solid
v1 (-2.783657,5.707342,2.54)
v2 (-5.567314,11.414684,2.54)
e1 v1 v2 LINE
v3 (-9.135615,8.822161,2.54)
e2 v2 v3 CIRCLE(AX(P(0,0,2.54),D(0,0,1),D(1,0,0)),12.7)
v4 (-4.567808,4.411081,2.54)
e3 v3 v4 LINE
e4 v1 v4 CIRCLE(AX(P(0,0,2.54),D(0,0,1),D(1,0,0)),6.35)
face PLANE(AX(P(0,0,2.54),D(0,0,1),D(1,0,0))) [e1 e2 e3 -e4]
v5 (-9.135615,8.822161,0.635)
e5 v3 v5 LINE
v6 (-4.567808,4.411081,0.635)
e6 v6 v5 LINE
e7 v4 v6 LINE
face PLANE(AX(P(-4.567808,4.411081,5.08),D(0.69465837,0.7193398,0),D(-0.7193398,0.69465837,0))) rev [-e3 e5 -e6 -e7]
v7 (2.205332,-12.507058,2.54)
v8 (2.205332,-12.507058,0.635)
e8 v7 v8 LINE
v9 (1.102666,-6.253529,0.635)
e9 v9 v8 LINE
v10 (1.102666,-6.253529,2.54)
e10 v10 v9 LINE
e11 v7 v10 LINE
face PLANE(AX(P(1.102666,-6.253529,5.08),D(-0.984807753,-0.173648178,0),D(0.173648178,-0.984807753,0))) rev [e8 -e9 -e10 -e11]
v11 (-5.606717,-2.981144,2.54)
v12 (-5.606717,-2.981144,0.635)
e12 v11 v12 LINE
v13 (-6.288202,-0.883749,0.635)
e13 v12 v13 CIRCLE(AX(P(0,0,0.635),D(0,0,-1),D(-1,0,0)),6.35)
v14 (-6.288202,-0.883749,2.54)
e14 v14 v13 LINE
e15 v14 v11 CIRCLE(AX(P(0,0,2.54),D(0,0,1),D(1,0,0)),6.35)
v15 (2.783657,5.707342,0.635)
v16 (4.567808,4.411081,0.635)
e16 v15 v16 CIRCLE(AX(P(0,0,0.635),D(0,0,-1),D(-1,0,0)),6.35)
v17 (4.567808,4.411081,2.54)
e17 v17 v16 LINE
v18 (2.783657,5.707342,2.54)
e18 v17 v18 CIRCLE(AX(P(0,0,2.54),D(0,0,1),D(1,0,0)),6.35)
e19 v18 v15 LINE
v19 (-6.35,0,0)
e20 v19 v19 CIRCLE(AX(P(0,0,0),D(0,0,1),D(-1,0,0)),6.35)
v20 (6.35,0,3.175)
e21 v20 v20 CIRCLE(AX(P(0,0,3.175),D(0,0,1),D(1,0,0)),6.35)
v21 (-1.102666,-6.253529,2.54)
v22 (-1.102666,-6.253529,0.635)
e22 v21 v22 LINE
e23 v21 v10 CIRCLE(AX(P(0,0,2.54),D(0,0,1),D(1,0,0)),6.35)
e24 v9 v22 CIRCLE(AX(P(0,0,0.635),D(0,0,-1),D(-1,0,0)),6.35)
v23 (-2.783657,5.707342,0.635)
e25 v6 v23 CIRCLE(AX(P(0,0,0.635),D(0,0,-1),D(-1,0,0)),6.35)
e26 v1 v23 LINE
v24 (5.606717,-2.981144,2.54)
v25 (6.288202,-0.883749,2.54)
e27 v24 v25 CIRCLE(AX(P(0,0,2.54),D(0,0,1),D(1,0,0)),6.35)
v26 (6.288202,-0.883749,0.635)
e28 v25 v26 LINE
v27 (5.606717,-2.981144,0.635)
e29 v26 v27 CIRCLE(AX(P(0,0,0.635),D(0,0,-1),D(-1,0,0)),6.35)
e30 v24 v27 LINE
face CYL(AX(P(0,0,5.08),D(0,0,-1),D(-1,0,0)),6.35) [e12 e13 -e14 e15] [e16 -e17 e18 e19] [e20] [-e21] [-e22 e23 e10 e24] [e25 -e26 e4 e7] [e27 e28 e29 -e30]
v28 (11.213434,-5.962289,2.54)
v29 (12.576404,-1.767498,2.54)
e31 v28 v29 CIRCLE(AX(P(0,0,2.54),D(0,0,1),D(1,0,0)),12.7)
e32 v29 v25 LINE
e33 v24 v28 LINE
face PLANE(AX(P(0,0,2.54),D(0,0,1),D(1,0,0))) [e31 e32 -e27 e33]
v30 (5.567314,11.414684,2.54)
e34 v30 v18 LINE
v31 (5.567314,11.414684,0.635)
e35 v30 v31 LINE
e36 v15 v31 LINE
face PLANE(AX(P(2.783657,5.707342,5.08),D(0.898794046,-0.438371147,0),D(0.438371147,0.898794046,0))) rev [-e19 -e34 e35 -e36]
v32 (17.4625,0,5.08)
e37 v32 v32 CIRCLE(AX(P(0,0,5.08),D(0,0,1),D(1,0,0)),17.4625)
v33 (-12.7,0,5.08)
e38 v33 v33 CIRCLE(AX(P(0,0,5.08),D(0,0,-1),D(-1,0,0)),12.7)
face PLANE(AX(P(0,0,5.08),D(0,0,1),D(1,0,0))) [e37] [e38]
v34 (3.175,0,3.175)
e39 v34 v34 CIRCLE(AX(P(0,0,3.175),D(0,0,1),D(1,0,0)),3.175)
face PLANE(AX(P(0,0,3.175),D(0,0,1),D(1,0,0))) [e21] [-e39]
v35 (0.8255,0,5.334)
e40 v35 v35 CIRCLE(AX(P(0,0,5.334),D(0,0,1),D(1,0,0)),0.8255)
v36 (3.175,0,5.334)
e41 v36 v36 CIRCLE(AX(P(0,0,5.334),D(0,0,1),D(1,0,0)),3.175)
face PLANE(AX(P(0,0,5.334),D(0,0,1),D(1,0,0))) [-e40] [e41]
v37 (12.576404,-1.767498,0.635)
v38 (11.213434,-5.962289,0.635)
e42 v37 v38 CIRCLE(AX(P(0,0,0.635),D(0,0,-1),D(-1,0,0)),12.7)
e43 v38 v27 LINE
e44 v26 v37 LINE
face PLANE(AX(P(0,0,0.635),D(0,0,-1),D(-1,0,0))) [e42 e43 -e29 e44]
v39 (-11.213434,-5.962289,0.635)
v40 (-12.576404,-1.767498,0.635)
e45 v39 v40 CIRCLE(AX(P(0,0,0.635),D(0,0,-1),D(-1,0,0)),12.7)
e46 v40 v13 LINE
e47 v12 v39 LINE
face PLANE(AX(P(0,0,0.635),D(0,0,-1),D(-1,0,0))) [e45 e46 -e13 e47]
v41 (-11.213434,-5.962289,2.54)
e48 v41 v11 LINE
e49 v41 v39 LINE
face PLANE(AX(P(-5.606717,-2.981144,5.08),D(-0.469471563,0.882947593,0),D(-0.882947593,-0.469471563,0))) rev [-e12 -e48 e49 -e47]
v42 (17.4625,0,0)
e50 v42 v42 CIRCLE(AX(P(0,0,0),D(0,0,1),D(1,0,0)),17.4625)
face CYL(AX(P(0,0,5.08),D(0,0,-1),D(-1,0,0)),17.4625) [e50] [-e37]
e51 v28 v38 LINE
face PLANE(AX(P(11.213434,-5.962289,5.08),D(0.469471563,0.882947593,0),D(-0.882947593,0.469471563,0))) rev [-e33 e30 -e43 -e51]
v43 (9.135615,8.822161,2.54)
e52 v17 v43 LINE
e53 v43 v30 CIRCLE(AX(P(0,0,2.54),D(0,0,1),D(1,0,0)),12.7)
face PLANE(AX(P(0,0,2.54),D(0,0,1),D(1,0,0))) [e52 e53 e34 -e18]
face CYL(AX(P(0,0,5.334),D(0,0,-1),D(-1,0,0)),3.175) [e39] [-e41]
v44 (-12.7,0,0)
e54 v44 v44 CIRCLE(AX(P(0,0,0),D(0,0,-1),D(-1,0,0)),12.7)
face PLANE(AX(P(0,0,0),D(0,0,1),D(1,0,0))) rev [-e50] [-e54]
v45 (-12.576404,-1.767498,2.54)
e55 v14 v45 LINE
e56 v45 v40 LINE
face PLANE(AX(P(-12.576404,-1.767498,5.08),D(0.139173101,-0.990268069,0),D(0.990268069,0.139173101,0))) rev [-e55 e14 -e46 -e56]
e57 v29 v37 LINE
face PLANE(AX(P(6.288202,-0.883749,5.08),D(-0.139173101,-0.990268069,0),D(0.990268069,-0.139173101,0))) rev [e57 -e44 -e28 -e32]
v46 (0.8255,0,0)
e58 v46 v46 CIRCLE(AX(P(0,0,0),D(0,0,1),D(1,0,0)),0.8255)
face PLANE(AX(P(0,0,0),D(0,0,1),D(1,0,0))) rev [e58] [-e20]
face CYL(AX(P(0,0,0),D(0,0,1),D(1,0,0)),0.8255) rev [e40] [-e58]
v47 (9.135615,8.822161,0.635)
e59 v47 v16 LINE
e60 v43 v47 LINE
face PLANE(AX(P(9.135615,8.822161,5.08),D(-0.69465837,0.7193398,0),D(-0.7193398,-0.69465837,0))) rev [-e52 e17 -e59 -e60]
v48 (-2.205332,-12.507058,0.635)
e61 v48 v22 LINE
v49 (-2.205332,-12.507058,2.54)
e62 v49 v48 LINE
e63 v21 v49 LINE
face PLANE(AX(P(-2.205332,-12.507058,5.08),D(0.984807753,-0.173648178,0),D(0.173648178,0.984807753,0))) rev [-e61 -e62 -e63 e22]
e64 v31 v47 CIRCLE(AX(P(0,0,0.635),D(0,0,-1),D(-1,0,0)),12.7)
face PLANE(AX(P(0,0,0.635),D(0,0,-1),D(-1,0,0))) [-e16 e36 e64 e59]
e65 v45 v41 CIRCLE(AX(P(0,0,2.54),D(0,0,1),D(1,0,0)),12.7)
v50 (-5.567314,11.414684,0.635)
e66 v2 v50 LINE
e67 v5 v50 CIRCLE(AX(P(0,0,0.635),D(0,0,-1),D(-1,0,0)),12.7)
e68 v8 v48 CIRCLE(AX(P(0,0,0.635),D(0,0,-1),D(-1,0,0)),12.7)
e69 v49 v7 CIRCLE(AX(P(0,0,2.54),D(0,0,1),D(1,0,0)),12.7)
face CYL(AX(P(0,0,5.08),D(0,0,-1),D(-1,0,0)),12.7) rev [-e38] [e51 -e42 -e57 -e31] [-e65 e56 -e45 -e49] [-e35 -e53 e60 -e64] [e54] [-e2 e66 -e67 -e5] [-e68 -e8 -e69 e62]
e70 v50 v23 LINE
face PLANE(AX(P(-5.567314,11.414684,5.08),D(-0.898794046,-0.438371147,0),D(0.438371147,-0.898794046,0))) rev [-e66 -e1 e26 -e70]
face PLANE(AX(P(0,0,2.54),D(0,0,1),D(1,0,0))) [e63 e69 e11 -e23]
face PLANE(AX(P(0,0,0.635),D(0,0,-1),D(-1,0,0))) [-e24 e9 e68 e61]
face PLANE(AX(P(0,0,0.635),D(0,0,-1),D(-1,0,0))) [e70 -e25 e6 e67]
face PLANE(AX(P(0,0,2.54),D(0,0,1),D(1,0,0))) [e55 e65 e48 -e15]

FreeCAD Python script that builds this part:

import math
import FreeCAD as App
import Part
import Sketcher

V = App.Vector
Q = App.Units.Quantity

doc = App.newDocument("Part")
body = doc.addObject("PartDesign::Body", "Body")

# Sketch on XY plane
sketch1 = body.newObject("Sketcher::SketchObject", "Sketch")
sketch1.AttachmentSupport = (doc.getObject("XY_Plane"), [""])
sketch1.MapMode = "FlatFace"
sketch1.addGeometry(Part.Circle(V(0, 0, 0), V(0, 0, 1), 17), False)
sketch1.addConstraint([
    Sketcher.Constraint("Coincident", 0, 3, -1, 1),
    Sketcher.Constraint("Diameter", 0, Q("1.375 in")),
])
pad1 = body.newObject("PartDesign::Pad", "Pad")
pad1.Profile = sketch1
pad1.Length = Q("0.2 in")

# Sketch on XY plane
sketch2 = body.newObject("Sketcher::SketchObject", "Sketch001")
sketch2.AttachmentSupport = (doc.getObject("XY_Plane"), [""])
sketch2.MapMode = "FlatFace"
sketch2.addGeometry([
    Part.LineSegment(V(-1, -6, 0), V(-2, -13, 0)),  # 0
    Part.ArcOfCircle(Part.Circle(V(0, 0, 0), V(0, 0, 1), 13), math.radians(-152), math.radians(-100)),  # 1
    Part.LineSegment(V(-11, -6, 0), V(-6, -3, 0)),  # 2
    Part.ArcOfCircle(Part.Circle(V(0, 0, 0), V(0, 0, 1), 6), math.radians(-152), math.radians(-100)),  # 3
    Part.LineSegment(V(2, -13, 0), V(1, -6, 0)),  # 4
    Part.ArcOfCircle(Part.Circle(V(0, 0, 0), V(0, 0, 1), 6), math.radians(-80), math.radians(-28)),  # 5
    Part.LineSegment(V(6, -3, 0), V(11, -6, 0)),  # 6
    Part.ArcOfCircle(Part.Circle(V(0, 0, 0), V(0, 0, 1), 13), math.radians(-80), math.radians(-28)),  # 7
    Part.LineSegment(V(13, -2, 0), V(6, -1, 0)),  # 8
    Part.ArcOfCircle(Part.Circle(V(0, 0, 0), V(0, 0, 1), 6), math.radians(-8), math.radians(44)),  # 9
    Part.LineSegment(V(5, 4, 0), V(9, 9, 0)),  # 10
    Part.ArcOfCircle(Part.Circle(V(0, 0, 0), V(0, 0, 1), 13), math.radians(-8), math.radians(44)),  # 11
    Part.LineSegment(V(6, 11, 0), V(3, 6, 0)),  # 12
    Part.ArcOfCircle(Part.Circle(V(0, 0, 0), V(0, 0, 1), 6), math.radians(64), math.radians(116)),  # 13
    Part.LineSegment(V(-3, 6, 0), V(-6, 11, 0)),  # 14
    Part.ArcOfCircle(Part.Circle(V(0, 0, 0), V(0, 0, 1), 13), math.radians(64), math.radians(116)),  # 15
    Part.LineSegment(V(-9, 9, 0), V(-5, 4, 0)),  # 16
    Part.ArcOfCircle(Part.Circle(V(0, 0, 0), V(0, 0, 1), 6), math.radians(136), math.radians(188)),  # 17
    Part.LineSegment(V(-6, -1, 0), V(-13, -2, 0)),  # 18
    Part.ArcOfCircle(Part.Circle(V(0, 0, 0), V(0, 0, 1), 13), math.radians(136), math.radians(188)),  # 19
], False)
sketch2.addConstraint([
    Sketcher.Constraint("Coincident", 0, 2, 1, 2),
    Sketcher.Constraint("Coincident", 1, 1, 2, 1),
    Sketcher.Constraint("Coincident", 2, 2, 3, 1),
    Sketcher.Constraint("Coincident", 3, 2, 0, 1),
    Sketcher.Constraint("Coincident", 4, 2, 5, 1),
    Sketcher.Constraint("Coincident", 5, 2, 6, 1),
    Sketcher.Constraint("Coincident", 6, 2, 7, 2),
    Sketcher.Constraint("Coincident", 7, 1, 4, 1),
    Sketcher.Constraint("Coincident", 8, 2, 9, 1),
    Sketcher.Constraint("Coincident", 9, 2, 10, 1),
    Sketcher.Constraint("Coincident", 10, 2, 11, 2),
    Sketcher.Constraint("Coincident", 11, 1, 8, 1),
    Sketcher.Constraint("Coincident", 12, 2, 13, 1),
    Sketcher.Constraint("Coincident", 13, 2, 14, 1),
    Sketcher.Constraint("Coincident", 14, 2, 15, 2),
    Sketcher.Constraint("Coincident", 15, 1, 12, 1),
    Sketcher.Constraint("Coincident", 16, 2, 17, 1),
    Sketcher.Constraint("Coincident", 17, 2, 18, 1),
    Sketcher.Constraint("Coincident", 18, 2, 19, 2),
    Sketcher.Constraint("Coincident", 19, 1, 16, 1),
    Sketcher.Constraint("Coincident", 1, 3, -1, 1),
    Sketcher.Constraint("Coincident", 3, 3, -1, 1),
    Sketcher.Constraint("Coincident", 5, 3, -1, 1),
    Sketcher.Constraint("Coincident", 7, 3, -1, 1),
    Sketcher.Constraint("Coincident", 9, 3, -1, 1),
    Sketcher.Constraint("Coincident", 11, 3, -1, 1),
    Sketcher.Constraint("Coincident", 13, 3, -1, 1),
    Sketcher.Constraint("Coincident", 15, 3, -1, 1),
    Sketcher.Constraint("Coincident", 17, 3, -1, 1),
    Sketcher.Constraint("Coincident", 19, 3, -1, 1),
    Sketcher.Constraint("Equal", 3, 5),
    Sketcher.Constraint("Equal", 1, 7),
    Sketcher.Constraint("Equal", 5, 9),
    Sketcher.Constraint("Equal", 7, 11),
    Sketcher.Constraint("Equal", 9, 13),
    Sketcher.Constraint("Equal", 11, 15),
    Sketcher.Constraint("Equal", 13, 17),
    Sketcher.Constraint("Equal", 15, 19),
    Sketcher.Constraint("Horizontal", 3, 2, 4, 2),
    Sketcher.Constraint("Horizontal", 2, 2, 5, 2),
    Sketcher.Constraint("Horizontal", 1, 1, 6, 2),
    Sketcher.Constraint("Horizontal", 0, 2, 7, 1),
    Sketcher.Constraint("Horizontal", 12, 2, 13, 2),
    Sketcher.Constraint("Horizontal", 14, 2, 15, 1),
    Sketcher.Constraint("Horizontal", 9, 2, 16, 2),
    Sketcher.Constraint("Horizontal", 8, 2, 17, 2),
    Sketcher.Constraint("Horizontal", 11, 1, 18, 2),
    Sketcher.Constraint("Horizontal", 10, 2, 19, 1),
    Sketcher.Constraint("Radius", 1, Q("0.5 in")),
    Sketcher.Constraint("Radius", 3, Q("0.25 in")),
    Sketcher.Constraint("Angle", 0, Q("-100 deg")),
    Sketcher.Constraint("Angle", 2, Q("28 deg")),
    Sketcher.Constraint("Angle", 8, Q("172 deg")),
    Sketcher.Constraint("Angle", 10, Q("44 deg")),
    Sketcher.Constraint("Angle", 12, Q("-116 deg")),
    Sketcher.Constraint("DistanceY", 11, 1, -1, 1, Q("1.767498 mm")),
    Sketcher.Constraint("DistanceX", 3, 2, 6, 2, Q("12.3161 mm")),
    Sketcher.Constraint("DistanceX", 5, 2, 10, 2, Q("3.528898 mm")),
    Sketcher.Constraint("DistanceX", 15, 1, 10, 2, Q("3.568302 mm")),
    Sketcher.Constraint("DistanceX", 0, 2, -1, 1, Q("2.205332 mm")),
])
pocket1 = body.newObject("PartDesign::Pocket", "Pocket")
pocket1.Profile = sketch2
pocket1.Length = Q("0.2 in")
pocket1.Reversed = True

# Sketch on XY plane
sketch3 = body.newObject("Sketcher::SketchObject", "Sketch002")
sketch3.AttachmentSupport = (doc.getObject("XY_Plane"), [""])
sketch3.MapMode = "FlatFace"
sketch3.AttachmentOffset = App.Placement(V(0, 0, 0.2 * 25.4), App.Rotation())
sketch3.addGeometry(Part.Circle(V(0, 0, 0), V(0, 0, 1), 3.2), False)
sketch3.addConstraint([
    Sketcher.Constraint("Coincident", 0, 3, -1, 1),
    Sketcher.Constraint("Diameter", 0, Q("0.25 in")),
])
pad2 = body.newObject("PartDesign::Pad", "Pad001")
pad2.Profile = sketch3
pad2.Length = Q("0.01 in")

# Sketch on XY plane
sketch4 = body.newObject("Sketcher::SketchObject", "Sketch003")
sketch4.AttachmentSupport = (doc.getObject("XY_Plane"), [""])
sketch4.MapMode = "FlatFace"
sketch4.AttachmentOffset = App.Placement(V(0, 0, 0.21 * 25.4), App.Rotation())
sketch4.addGeometry(Part.Circle(V(0, 0, 0), V(0, 0, 1), 0.8), False)
sketch4.addConstraint([
    Sketcher.Constraint("Coincident", 0, 3, -1, 1),
    Sketcher.Constraint("Diameter", 0, Q("0.065 in")),
])
pocket2 = body.newObject("PartDesign::Pocket", "Pocket001")
pocket2.Profile = sketch4
pocket2.Type = "ThroughAll"

# Sketch on XY plane
sketch5 = body.newObject("Sketcher::SketchObject", "Sketch004")
sketch5.AttachmentSupport = (doc.getObject("XY_Plane"), [""])
sketch5.MapMode = "FlatFace"
sketch5.AttachmentOffset = App.Placement(V(0, 0, 0.2 * 25.4), App.Rotation())
sketch5.addGeometry([
    Part.Circle(V(0, 0, 0), V(0, 0, 1), 13),
    Part.Circle(V(0, 0, 0), V(0, 0, 1), 6),
], False)
sketch5.addConstraint([
    Sketcher.Constraint("Coincident", 0, 3, -1, 1),
    Sketcher.Constraint("Coincident", 1, 3, -1, 1),
    Sketcher.Constraint("Diameter", 0, Q("1 in")),
    Sketcher.Constraint("Diameter", 1, Q("0.5 in")),
])
pocket3 = body.newObject("PartDesign::Pocket", "Pocket002")
pocket3.Profile = sketch5
pocket3.Length = Q("0.1 in")

# Sketch on XY plane
sketch6 = body.newObject("Sketcher::SketchObject", "Sketch005")
sketch6.AttachmentSupport = (doc.getObject("XY_Plane"), [""])
sketch6.MapMode = "FlatFace"
sketch6.addGeometry([
    Part.Circle(V(0, 0, 0), V(0, 0, 1), 13),
    Part.Circle(V(0, 0, 0), V(0, 0, 1), 6),
], False)
sketch6.addConstraint([
    Sketcher.Constraint("Coincident", 0, 3, -1, 1),
    Sketcher.Constraint("Coincident", 1, 3, -1, 1),
    Sketcher.Constraint("Diameter", 0, Q("1 in")),
    Sketcher.Constraint("Diameter", 1, Q("0.5 in")),
])
pocket4 = body.newObject("PartDesign::Pocket", "Pocket003")
pocket4.Profile = sketch6
pocket4.Length = Q("0.025 in")
pocket4.Reversed = True

# Sketch on XY plane
sketch7 = body.newObject("Sketcher::SketchObject", "Sketch006")
sketch7.AttachmentSupport = (doc.getObject("XY_Plane"), [""])
sketch7.MapMode = "FlatFace"
sketch7.AttachmentOffset = App.Placement(V(0, 0, 0.2 * 25.4), App.Rotation())
sketch7.addGeometry([
    Part.Circle(V(0, 0, 0), V(0, 0, 1), 6.3),
    Part.Circle(V(0, 0, 0), V(0, 0, 1), 3.2),
], False)
sketch7.addConstraint([
    Sketcher.Constraint("Coincident", 0, 3, -1, 1),
    Sketcher.Constraint("Coincident", 1, 3, -1, 1),
    Sketcher.Constraint("Diameter", 0, Q("0.5 in")),
    Sketcher.Constraint("Diameter", 1, Q("0.25 in")),
])
pocket5 = body.newObject("PartDesign::Pocket", "Pocket004")
pocket5.Profile = sketch7
pocket5.Length = Q("0.075 in")

doc.recompute()
